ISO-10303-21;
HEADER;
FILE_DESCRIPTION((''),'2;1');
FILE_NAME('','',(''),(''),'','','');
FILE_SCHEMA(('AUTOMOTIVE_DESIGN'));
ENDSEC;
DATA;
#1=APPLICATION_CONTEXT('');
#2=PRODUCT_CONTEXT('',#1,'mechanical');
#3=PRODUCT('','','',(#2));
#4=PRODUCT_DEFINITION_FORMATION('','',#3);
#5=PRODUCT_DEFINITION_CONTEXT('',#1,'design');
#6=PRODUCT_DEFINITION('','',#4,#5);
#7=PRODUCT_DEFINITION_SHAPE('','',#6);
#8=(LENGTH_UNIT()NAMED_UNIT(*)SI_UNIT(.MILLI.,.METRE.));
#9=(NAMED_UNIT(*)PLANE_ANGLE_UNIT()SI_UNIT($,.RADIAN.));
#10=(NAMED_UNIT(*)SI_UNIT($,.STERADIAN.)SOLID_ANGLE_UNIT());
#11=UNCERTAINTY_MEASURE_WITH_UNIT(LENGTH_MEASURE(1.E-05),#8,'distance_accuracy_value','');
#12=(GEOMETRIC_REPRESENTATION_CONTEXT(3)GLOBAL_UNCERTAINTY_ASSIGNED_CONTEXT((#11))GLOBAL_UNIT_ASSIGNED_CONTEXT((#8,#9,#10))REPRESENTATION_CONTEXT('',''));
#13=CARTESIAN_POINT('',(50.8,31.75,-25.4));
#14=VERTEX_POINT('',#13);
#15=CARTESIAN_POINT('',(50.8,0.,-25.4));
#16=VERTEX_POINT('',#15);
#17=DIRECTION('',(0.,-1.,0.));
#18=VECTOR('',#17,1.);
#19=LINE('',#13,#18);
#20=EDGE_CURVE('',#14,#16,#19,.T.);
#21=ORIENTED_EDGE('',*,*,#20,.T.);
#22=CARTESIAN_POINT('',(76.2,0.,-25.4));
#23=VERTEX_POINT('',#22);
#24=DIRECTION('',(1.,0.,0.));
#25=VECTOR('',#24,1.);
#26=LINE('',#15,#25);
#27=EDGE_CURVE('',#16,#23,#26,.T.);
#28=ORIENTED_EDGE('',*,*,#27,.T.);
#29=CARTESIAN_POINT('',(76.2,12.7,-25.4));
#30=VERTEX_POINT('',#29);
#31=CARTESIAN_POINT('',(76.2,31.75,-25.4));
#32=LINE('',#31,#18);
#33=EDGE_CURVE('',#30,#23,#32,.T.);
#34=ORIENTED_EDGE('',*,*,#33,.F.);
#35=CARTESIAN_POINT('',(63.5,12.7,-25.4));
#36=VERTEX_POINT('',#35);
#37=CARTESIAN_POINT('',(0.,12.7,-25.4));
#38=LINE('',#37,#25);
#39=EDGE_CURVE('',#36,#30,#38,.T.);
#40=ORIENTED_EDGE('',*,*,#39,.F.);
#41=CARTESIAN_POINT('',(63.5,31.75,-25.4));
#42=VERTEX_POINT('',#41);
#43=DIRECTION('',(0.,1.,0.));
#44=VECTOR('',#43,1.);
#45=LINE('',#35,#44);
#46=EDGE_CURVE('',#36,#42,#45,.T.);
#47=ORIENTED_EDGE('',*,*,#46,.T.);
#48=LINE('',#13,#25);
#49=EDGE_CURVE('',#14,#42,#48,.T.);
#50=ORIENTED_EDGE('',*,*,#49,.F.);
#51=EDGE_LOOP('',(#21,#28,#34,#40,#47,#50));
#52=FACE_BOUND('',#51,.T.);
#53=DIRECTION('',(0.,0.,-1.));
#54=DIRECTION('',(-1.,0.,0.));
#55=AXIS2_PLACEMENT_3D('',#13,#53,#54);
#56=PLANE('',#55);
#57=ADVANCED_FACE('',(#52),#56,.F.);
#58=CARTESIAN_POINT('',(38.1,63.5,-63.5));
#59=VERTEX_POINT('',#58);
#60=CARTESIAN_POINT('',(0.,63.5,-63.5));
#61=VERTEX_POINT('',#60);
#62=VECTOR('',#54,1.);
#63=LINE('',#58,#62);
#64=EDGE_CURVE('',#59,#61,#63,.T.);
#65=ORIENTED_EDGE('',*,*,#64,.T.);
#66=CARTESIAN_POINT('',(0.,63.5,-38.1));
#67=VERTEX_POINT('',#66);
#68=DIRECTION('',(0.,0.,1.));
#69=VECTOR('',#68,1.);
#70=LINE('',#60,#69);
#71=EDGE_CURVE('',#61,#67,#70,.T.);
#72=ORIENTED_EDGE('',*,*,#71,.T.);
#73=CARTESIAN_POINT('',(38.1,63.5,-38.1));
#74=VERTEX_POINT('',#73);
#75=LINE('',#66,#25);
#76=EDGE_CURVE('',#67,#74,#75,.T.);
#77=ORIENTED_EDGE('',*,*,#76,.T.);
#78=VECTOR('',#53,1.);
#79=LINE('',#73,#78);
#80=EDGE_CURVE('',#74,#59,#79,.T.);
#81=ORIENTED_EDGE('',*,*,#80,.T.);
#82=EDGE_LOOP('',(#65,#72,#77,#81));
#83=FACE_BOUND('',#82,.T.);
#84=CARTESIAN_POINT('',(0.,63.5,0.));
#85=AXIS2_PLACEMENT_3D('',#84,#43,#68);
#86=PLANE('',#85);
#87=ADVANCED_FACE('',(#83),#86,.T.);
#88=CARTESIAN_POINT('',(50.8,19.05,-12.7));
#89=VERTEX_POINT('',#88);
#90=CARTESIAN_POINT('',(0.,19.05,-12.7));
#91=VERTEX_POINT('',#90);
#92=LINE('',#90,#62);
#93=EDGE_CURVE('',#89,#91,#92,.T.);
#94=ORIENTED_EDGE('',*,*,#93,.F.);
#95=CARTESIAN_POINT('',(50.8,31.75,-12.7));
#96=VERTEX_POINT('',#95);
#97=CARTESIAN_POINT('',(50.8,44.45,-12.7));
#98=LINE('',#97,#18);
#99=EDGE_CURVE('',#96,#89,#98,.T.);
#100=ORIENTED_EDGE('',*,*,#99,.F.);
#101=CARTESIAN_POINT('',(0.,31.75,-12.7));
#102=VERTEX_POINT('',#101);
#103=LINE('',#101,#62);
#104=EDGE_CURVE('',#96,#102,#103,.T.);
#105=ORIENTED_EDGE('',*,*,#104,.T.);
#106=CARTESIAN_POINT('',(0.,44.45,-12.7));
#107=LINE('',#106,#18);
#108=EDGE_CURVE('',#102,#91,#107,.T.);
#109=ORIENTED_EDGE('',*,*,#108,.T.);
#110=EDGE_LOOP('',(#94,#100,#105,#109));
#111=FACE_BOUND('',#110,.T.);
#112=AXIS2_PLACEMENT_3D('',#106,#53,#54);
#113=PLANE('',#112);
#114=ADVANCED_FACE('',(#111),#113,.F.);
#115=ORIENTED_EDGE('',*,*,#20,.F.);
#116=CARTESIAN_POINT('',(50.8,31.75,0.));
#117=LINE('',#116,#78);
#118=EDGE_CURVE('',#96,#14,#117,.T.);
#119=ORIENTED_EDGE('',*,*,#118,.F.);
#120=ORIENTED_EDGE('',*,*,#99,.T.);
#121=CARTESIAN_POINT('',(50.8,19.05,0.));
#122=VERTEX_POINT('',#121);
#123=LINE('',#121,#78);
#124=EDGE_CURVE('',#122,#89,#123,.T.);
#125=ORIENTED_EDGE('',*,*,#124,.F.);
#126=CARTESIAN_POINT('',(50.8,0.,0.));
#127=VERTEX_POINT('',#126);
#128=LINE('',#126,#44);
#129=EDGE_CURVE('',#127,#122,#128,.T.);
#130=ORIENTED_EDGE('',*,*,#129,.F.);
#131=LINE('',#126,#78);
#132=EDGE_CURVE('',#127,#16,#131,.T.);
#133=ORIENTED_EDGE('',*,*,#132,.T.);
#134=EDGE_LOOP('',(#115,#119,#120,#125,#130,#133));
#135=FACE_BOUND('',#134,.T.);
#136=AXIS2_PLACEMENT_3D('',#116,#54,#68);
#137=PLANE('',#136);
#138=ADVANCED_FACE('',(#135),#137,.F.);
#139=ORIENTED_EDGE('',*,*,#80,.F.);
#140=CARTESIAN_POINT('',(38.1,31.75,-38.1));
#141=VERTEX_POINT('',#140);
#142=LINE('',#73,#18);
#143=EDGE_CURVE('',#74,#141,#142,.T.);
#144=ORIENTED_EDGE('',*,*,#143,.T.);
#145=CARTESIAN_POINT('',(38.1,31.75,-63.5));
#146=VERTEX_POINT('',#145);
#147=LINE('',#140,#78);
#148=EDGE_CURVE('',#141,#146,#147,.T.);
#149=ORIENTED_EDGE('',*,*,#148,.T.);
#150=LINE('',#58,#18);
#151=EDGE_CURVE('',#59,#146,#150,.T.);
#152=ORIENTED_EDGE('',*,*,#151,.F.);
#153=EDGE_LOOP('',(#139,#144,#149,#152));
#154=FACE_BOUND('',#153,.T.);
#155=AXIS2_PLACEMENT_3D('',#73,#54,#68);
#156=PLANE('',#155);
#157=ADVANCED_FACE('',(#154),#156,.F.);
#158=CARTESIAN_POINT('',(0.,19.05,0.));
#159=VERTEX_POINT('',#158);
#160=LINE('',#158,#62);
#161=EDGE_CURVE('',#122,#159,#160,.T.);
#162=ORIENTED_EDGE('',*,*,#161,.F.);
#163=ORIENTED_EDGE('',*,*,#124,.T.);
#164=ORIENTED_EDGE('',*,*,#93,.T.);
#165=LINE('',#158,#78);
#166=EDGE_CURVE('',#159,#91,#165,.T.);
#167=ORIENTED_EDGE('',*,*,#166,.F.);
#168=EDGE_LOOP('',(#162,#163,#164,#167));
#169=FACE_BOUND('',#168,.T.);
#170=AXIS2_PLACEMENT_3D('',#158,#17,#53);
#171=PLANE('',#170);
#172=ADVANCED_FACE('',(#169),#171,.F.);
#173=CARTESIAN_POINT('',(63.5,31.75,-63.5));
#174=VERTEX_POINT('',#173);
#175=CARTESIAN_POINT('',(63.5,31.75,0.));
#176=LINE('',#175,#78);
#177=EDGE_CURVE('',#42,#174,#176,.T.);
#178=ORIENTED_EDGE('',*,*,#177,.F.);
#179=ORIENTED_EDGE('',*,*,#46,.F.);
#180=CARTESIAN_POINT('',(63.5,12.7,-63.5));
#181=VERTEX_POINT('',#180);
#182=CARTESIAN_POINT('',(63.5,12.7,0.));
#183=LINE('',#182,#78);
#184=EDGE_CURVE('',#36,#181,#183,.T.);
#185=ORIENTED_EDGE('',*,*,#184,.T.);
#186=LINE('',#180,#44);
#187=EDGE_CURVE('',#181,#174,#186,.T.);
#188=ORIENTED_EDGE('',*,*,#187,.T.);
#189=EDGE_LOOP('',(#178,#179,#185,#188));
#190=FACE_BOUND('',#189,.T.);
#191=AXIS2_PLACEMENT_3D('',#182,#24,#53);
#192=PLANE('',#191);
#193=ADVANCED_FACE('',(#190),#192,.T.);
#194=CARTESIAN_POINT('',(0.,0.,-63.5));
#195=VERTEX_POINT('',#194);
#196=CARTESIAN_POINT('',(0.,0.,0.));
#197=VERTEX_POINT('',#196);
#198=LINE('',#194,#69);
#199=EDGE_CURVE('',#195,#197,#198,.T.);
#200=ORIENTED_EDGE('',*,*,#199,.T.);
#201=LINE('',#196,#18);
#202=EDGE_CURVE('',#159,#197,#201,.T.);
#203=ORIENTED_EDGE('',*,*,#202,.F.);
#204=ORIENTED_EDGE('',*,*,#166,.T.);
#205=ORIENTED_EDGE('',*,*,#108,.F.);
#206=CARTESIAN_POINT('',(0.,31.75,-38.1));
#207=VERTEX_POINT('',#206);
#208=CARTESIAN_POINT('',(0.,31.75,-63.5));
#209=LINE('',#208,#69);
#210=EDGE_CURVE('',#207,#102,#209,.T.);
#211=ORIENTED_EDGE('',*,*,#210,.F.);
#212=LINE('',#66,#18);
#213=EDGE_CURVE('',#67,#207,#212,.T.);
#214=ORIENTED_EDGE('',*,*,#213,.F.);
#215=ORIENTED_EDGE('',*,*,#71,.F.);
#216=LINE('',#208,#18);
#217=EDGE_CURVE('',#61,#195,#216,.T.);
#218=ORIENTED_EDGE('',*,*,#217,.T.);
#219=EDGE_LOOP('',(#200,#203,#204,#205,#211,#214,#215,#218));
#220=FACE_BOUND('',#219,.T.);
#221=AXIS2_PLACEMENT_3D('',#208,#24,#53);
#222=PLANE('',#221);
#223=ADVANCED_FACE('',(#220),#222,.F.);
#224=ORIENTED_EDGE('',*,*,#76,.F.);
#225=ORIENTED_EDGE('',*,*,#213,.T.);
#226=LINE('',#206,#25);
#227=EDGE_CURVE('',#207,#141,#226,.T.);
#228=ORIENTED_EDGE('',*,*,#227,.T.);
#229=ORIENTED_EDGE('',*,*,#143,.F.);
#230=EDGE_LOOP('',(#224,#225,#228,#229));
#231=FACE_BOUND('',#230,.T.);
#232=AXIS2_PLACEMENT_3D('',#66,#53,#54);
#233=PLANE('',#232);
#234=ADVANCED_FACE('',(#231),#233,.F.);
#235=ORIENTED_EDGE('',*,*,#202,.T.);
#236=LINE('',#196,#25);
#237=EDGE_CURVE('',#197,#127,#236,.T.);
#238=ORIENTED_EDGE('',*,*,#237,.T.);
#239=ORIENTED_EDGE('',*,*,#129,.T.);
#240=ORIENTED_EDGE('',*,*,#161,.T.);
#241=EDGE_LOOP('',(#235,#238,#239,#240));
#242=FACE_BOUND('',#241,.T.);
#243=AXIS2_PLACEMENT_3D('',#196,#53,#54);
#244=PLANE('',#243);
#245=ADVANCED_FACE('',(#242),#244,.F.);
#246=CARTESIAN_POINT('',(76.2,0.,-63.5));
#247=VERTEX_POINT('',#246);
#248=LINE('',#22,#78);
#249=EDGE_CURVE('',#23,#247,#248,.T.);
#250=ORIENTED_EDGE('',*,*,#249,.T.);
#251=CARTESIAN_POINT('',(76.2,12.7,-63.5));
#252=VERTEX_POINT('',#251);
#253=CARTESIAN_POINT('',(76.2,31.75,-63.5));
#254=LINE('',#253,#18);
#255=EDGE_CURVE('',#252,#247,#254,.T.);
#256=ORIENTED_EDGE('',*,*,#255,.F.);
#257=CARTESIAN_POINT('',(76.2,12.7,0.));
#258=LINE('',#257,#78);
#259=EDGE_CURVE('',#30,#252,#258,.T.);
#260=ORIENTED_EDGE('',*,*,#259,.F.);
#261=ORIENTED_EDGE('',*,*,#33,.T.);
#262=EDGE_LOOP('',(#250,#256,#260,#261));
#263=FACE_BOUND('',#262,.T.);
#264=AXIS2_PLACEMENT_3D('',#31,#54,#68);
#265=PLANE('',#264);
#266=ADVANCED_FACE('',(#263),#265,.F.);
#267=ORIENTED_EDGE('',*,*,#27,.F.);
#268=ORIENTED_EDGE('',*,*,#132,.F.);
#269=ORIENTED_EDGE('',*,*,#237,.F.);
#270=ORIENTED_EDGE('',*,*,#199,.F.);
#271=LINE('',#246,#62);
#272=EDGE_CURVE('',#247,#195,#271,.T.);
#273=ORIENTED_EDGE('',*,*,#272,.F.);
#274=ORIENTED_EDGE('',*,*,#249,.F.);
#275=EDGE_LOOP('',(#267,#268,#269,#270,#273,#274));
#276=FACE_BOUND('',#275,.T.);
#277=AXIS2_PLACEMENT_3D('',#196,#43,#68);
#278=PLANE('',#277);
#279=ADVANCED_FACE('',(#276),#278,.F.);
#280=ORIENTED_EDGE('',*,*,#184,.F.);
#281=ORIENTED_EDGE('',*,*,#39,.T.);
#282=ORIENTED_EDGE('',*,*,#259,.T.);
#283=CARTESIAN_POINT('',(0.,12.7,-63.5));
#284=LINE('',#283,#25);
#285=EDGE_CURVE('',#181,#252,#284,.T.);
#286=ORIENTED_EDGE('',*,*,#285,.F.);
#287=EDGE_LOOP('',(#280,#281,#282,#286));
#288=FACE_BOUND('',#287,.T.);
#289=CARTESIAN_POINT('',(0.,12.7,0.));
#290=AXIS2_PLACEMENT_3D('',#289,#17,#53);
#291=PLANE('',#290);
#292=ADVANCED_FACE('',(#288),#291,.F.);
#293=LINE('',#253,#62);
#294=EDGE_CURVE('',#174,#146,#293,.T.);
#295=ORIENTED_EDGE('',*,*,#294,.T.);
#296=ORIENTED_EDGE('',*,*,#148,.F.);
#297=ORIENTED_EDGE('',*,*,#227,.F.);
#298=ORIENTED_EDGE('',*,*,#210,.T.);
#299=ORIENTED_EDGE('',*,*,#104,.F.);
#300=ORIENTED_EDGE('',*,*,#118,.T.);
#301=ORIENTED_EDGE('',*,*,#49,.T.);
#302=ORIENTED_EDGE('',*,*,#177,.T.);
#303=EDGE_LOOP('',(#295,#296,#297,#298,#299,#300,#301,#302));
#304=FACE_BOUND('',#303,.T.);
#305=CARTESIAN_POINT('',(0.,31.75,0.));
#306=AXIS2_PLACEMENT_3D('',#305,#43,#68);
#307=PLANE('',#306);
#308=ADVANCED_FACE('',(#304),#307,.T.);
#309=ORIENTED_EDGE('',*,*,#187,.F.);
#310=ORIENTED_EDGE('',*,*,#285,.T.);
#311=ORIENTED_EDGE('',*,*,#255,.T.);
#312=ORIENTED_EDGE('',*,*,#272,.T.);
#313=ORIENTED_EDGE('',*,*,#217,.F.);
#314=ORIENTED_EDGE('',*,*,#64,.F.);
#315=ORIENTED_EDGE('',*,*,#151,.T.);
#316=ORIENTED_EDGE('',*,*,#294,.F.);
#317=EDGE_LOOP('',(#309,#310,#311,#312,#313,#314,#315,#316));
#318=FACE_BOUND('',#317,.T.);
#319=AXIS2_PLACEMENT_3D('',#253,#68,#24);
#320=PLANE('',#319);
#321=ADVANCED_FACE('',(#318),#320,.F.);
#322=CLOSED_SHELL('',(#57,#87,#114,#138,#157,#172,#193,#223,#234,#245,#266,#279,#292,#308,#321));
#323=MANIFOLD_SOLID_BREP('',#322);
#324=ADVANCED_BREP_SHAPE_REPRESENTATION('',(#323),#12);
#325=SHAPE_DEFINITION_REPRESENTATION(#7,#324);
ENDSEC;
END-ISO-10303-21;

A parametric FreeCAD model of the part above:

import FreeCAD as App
import Part
import Sketcher
from FreeCAD import Vector
Q = App.Units.Quantity

doc = App.newDocument("Part")
body = doc.addObject("PartDesign::Body", "Body")

# Sketch on XZ plane
sketch1 = body.newObject("Sketcher::SketchObject", "Sketch")
sketch1.AttachmentSupport = (doc.getObject("XZ_Plane"), [""])
sketch1.MapMode = "FlatFace"
sketch1.addGeometry([
    Part.LineSegment(Vector(0, 0, 0), Vector(51, 0, 0)),  # 0
    Part.LineSegment(Vector(51, 0, 0), Vector(51, -25, 0)),  # 1
    Part.LineSegment(Vector(51, -25, 0), Vector(76, -25, 0)),  # 2
    Part.LineSegment(Vector(76, -25, 0), Vector(76, -64, 0)),  # 3
    Part.LineSegment(Vector(76, -64, 0), Vector(0, -64, 0)),  # 4
    Part.LineSegment(Vector(0, -64, 0), Vector(0, 0, 0)),  # 5
], False)
sketch1.addConstraint([
    Sketcher.Constraint("Coincident", 0, 2, 1, 1),
    Sketcher.Constraint("Coincident", 1, 2, 2, 1),
    Sketcher.Constraint("Coincident", 2, 2, 3, 1),
    Sketcher.Constraint("Coincident", 3, 2, 4, 1),
    Sketcher.Constraint("Coincident", 4, 2, 5, 1),
    Sketcher.Constraint("Coincident", 5, 2, 0, 1),
    Sketcher.Constraint("Horizontal", 0),
    Sketcher.Constraint("Vertical", 1),
    Sketcher.Constraint("Horizontal", 2),
    Sketcher.Constraint("Vertical", 3),
    Sketcher.Constraint("Horizontal", 4),
    Sketcher.Constraint("Vertical", 5),
    Sketcher.Constraint("Coincident", 5, 2, -1, 1),
    Sketcher.Constraint("Equal", 2, 1),
    Sketcher.Constraint("DistanceX", 0, 1, 0, 2, Q("2 in")),
    Sketcher.Constraint("DistanceX", 2, 1, 2, 2, Q("1 in")),
    Sketcher.Constraint("DistanceY", 3, 2, 3, 1, Q("1.5 in")),
])
pad1 = body.newObject("PartDesign::Pad", "Pad")
pad1.Profile = sketch1
pad1.Length = Q("1.25 in")
pad1.Reversed = True

# Sketch on XZ plane
sketch2 = body.newObject("Sketcher::SketchObject", "Sketch001")
sketch2.AttachmentSupport = (doc.getObject("XZ_Plane"), [""])
sketch2.MapMode = "FlatFace"
sketch2.AttachmentOffset = App.Placement(Vector(0, 0, -1.25 * 25.4), App.Rotation())
sketch2.addGeometry([
    Part.LineSegment(Vector(64, -64, 0), Vector(64, -25, 0)),
    Part.LineSegment(Vector(64, -25, 0), Vector(76, -25, 0)),
    Part.LineSegment(Vector(76, -25, 0), Vector(76, -64, 0)),
    Part.LineSegment(Vector(76, -64, 0), Vector(64, -64, 0)),
], False)
sketch2.addConstraint([
    Sketcher.Constraint("Coincident", 0, 2, 1, 1),
    Sketcher.Constraint("Coincident", 1, 2, 2, 1),
    Sketcher.Constraint("Coincident", 2, 2, 3, 1),
    Sketcher.Constraint("Coincident", 3, 2, 0, 1),
    Sketcher.Constraint("Vertical", 0),
    Sketcher.Constraint("Horizontal", 1),
    Sketcher.Constraint("Vertical", 2),
    Sketcher.Constraint("Horizontal", 3),
    Sketcher.Constraint("DistanceX", 1, 1, 1, 2, Q("0.5 in")),
    Sketcher.Constraint("DistanceY", 0, 1, 0, 2, Q("1.5 in")),
    Sketcher.Constraint("DistanceY", 0, 2, -1, 1, Q("1 in")),
    Sketcher.Constraint("DistanceX", -1, 1, 1, 2, Q("3 in")),
])
pocket1 = body.newObject("PartDesign::Pocket", "Pocket")
pocket1.Profile = sketch2
pocket1.Length = Q("0.75 in")
pocket1.Reversed = True

# Sketch on XZ plane
sketch3 = body.newObject("Sketcher::SketchObject", "Sketch002")
sketch3.AttachmentSupport = (doc.getObject("XZ_Plane"), [""])
sketch3.MapMode = "FlatFace"
sketch3.addGeometry([
    Part.LineSegment(Vector(0, 0, 0), Vector(0, -13, 0)),
    Part.LineSegment(Vector(0, -13, 0), Vector(51, -13, 0)),
    Part.LineSegment(Vector(51, -13, 0), Vector(51, 0, 0)),
    Part.LineSegment(Vector(51, 0, 0), Vector(0, 0, 0)),
], False)
sketch3.addConstraint([
    Sketcher.Constraint("Coincident", 0, 2, 1, 1),
    Sketcher.Constraint("Coincident", 1, 2, 2, 1),
    Sketcher.Constraint("Coincident", 2, 2, 3, 1),
    Sketcher.Constraint("Coincident", 3, 2, 0, 1),
    Sketcher.Constraint("Vertical", 0),
    Sketcher.Constraint("Horizontal", 1),
    Sketcher.Constraint("Vertical", 2),
    Sketcher.Constraint("Horizontal", 3),
    Sketcher.Constraint("Coincident", 3, 2, -1, 1),
    Sketcher.Constraint("DistanceX", 1, 1, 1, 2, Q("2 in")),
    Sketcher.Constraint("DistanceY", 0, 2, 0, 1, Q("0.5 in")),
])
pocket2 = body.newObject("PartDesign::Pocket", "Pocket001")
pocket2.Profile = sketch3
pocket2.Length = Q("1.75 in")

# Sketch on XY plane
sketch4 = body.newObject("Sketcher::SketchObject", "Sketch003")
sketch4.AttachmentSupport = (doc.getObject("XY_Plane"), [""])
sketch4.MapMode = "FlatFace"
sketch4.AttachmentOffset = App.Placement(Vector(0, 0, -0.5 * 25.4), App.Rotation())
sketch4.addGeometry([
    Part.LineSegment(Vector(0, 19, 0), Vector(0, 0, 0)),
    Part.LineSegment(Vector(0, 0, 0), Vector(51, 0, 0)),
    Part.LineSegment(Vector(51, 0, 0), Vector(51, 19, 0)),
    Part.LineSegment(Vector(51, 19, 0), Vector(0, 19, 0)),
], False)
sketch4.addConstraint([
    Sketcher.Constraint("Coincident", 0, 2, 1, 1),
    Sketcher.Constraint("Coincident", 1, 2, 2, 1),
    Sketcher.Constraint("Coincident", 2, 2, 3, 1),
    Sketcher.Constraint("Coincident", 3, 2, 0, 1),
    Sketcher.Constraint("Vertical", 0),
    Sketcher.Constraint("Horizontal", 1),
    Sketcher.Constraint("Vertical", 2),
    Sketcher.Constraint("Horizontal", 3),
    Sketcher.Constraint("Coincident", 0, 2, -1, 1),
    Sketcher.Constraint("DistanceX", 1, 1, 1, 2, Q("2 in")),
    Sketcher.Constraint("DistanceY", 0, 2, 0, 1, Q("0.75 in")),
])
pad2 = body.newObject("PartDesign::Pad", "Pad001")
pad2.Profile = sketch4
pad2.Length = Q("0.5 in")

# Sketch on XZ plane
sketch5 = body.newObject("Sketcher::SketchObject", "Sketch004")
sketch5.AttachmentSupport = (doc.getObject("XZ_Plane"), [""])
sketch5.MapMode = "FlatFace"
sketch5.AttachmentOffset = App.Placement(Vector(0, 0, -1.25 * 25.4), App.Rotation())
sketch5.addGeometry([
    Part.LineSegment(Vector(0, -64, 0), Vector(0, -38, 0)),
    Part.LineSegment(Vector(0, -38, 0), Vector(38, -38, 0)),
    Part.LineSegment(Vector(38, -38, 0), Vector(38, -64, 0)),
    Part.LineSegment(Vector(38, -64, 0), Vector(0, -64, 0)),
], False)
sketch5.addConstraint([
    Sketcher.Constraint("Coincident", 0, 2, 1, 1),
    Sketcher.Constraint("Coincident", 1, 2, 2, 1),
    Sketcher.Constraint("Coincident", 2, 2, 3, 1),
    Sketcher.Constraint("Coincident", 3, 2, 0, 1),
    Sketcher.Constraint("Vertical", 0),
    Sketcher.Constraint("Horizontal", 1),
    Sketcher.Constraint("Vertical", 2),
    Sketcher.Constraint("Horizontal", 3),
    Sketcher.Constraint("PointOnObject", 0, 2, -2),
    Sketcher.Constraint("DistanceY", 0, 1, 0, 2, Q("1 in")),
    Sketcher.Constraint("DistanceX", 1, 1, 1, 2, Q("1.5 in")),
    Sketcher.Constraint("DistanceY", 0, 2, -1, 1, Q("1.5 in")),
])
pad3 = body.newObject("PartDesign::Pad", "Pad002")
pad3.Profile = sketch5
pad3.Length = Q("1.25 in")
pad3.Reversed = True

doc.recompute()
